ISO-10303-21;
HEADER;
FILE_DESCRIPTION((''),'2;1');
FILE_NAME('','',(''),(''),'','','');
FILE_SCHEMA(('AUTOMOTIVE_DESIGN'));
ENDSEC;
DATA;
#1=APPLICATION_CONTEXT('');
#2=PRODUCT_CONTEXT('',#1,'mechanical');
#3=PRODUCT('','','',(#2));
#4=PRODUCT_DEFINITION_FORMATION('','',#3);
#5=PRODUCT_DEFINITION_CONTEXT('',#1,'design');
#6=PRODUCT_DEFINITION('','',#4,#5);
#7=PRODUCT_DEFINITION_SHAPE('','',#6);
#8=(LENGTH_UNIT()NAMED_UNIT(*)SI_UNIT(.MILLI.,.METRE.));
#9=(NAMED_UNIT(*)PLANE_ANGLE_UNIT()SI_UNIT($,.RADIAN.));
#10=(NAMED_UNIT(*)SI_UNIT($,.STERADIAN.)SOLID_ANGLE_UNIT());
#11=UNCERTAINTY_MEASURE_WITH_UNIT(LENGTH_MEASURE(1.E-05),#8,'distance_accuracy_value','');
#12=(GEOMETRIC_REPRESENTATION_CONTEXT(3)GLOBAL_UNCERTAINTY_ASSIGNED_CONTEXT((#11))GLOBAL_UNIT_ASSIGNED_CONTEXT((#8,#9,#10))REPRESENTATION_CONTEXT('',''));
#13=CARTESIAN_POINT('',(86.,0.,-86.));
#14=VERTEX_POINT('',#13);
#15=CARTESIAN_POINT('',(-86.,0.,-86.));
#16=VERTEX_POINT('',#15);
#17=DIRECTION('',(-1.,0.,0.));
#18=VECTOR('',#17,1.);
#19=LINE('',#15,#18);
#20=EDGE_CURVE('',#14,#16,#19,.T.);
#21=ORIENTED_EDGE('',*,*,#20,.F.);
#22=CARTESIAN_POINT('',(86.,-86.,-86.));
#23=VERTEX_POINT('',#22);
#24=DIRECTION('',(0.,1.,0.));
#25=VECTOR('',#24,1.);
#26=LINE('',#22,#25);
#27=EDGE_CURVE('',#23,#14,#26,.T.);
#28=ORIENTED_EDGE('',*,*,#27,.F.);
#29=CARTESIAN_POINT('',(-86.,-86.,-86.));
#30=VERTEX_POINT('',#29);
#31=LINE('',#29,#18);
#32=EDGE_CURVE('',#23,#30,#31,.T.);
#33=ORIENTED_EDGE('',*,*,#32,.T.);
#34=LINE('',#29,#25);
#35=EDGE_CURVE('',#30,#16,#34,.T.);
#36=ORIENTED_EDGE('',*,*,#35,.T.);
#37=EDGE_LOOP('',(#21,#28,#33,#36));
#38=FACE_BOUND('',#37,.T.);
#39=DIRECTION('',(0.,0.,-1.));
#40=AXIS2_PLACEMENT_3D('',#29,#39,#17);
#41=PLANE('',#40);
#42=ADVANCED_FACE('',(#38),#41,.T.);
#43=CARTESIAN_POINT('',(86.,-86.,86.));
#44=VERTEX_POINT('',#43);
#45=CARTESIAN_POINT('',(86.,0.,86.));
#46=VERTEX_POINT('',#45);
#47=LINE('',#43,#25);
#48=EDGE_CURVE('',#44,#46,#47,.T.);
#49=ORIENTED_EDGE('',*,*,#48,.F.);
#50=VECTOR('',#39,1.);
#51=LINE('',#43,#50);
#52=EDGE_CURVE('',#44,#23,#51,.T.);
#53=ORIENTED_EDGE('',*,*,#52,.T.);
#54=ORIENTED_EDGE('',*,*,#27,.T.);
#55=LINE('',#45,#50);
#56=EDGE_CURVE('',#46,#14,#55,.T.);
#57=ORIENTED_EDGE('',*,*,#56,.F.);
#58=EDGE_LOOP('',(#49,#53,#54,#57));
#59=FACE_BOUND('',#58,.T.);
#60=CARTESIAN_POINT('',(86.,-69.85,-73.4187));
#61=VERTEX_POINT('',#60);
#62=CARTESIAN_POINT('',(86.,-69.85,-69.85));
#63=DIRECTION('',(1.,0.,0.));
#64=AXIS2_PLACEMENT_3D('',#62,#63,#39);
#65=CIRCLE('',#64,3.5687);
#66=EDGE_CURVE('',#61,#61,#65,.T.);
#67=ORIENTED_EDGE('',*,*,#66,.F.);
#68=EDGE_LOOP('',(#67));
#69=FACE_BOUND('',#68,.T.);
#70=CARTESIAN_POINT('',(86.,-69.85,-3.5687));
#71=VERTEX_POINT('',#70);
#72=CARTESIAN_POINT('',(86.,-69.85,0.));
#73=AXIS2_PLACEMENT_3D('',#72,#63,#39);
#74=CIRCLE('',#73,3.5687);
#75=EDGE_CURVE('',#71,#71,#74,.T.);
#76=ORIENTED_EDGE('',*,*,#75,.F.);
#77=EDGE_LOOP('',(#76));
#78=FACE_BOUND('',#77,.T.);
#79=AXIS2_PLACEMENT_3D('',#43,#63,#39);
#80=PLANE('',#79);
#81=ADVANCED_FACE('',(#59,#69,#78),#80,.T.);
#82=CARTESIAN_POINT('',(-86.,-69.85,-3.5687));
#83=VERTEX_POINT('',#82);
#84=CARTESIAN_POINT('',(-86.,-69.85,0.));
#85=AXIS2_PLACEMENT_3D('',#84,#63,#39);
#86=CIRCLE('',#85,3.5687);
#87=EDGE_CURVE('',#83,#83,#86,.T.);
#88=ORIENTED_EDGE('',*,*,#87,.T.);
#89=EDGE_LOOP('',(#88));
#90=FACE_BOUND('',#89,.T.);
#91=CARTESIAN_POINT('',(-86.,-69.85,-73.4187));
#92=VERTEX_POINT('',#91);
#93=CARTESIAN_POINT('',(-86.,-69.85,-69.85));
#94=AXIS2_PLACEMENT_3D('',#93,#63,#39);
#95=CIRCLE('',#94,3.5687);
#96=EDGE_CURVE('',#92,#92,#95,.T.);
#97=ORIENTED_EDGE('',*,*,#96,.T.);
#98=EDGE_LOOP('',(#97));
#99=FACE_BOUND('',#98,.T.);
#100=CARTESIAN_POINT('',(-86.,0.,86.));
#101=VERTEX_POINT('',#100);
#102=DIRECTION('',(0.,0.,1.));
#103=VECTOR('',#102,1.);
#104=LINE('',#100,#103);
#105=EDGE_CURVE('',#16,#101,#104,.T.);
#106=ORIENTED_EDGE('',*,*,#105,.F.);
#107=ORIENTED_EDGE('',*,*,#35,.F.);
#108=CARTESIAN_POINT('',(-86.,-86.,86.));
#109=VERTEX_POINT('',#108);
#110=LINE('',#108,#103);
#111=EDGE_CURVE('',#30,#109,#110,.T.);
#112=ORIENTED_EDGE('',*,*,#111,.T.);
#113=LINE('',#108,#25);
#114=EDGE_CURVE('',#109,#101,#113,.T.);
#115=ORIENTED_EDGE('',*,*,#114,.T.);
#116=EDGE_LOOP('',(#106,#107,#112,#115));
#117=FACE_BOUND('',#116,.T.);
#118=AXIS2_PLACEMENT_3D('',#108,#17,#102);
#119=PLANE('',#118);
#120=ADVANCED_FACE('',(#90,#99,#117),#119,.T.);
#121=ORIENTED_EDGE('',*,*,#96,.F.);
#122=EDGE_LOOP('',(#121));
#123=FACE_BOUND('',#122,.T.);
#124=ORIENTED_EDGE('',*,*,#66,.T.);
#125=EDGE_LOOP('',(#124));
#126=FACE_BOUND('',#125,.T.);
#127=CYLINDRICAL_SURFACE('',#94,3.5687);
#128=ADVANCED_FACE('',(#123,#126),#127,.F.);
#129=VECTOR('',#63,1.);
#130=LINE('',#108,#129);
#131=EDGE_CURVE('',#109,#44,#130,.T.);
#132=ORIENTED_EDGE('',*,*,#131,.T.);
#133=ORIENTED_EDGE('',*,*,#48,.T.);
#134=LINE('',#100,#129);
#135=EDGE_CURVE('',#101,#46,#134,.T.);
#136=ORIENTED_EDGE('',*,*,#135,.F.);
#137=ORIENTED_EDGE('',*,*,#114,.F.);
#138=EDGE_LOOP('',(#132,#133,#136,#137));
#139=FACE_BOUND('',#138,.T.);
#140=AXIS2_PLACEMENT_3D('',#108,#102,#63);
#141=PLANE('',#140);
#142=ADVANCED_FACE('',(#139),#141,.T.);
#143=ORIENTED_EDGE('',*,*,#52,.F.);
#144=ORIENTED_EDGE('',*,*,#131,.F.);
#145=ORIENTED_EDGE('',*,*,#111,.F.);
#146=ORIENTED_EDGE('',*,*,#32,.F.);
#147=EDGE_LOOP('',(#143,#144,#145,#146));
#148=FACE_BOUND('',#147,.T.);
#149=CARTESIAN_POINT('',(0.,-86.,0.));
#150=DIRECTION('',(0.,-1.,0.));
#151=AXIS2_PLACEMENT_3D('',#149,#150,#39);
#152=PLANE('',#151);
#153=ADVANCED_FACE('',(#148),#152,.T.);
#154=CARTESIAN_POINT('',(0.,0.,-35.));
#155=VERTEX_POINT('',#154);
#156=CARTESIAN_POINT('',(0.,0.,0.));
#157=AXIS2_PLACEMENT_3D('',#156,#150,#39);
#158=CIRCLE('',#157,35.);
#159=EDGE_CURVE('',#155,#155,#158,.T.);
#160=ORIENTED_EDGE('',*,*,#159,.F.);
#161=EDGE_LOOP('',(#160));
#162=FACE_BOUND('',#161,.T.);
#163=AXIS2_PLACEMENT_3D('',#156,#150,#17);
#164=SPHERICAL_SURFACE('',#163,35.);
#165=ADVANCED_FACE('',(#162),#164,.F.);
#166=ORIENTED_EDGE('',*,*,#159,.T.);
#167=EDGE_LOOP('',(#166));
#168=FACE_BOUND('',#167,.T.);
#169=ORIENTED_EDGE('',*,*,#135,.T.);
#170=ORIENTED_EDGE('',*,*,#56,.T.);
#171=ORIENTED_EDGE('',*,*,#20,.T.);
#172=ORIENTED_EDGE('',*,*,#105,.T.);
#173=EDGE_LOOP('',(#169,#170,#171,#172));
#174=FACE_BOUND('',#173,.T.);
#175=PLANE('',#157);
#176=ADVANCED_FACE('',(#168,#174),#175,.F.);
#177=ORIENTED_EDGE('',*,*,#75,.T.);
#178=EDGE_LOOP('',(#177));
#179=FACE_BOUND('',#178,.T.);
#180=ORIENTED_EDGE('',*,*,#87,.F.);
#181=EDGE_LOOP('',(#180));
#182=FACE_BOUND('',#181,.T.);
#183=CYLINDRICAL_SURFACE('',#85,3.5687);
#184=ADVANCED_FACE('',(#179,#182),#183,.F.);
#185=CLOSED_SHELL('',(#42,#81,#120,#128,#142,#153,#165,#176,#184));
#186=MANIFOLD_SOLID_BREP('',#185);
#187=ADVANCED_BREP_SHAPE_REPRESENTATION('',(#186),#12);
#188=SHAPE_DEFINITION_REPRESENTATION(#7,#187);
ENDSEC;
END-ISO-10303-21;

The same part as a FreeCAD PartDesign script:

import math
import FreeCAD as App
import Part
import Sketcher

V = App.Vector
Q = App.Units.Quantity

doc = App.newDocument("Part")
body = doc.addObject("PartDesign::Body", "Body")

# Sketch on XZ plane
sketch1 = body.newObject("Sketcher::SketchObject", "Sketch")
sketch1.AttachmentSupport = (doc.getObject("XZ_Plane"), [""])
sketch1.MapMode = "FlatFace"
sketch1.addGeometry(Part.LineSegment(V(-86, -86, 0), V(-86, 86, 0)), False)
sketch1.addGeometry(Part.LineSegment(V(-86, 86, 0), V(86, 86, 0)), False)
sketch1.addGeometry(Part.LineSegment(V(86, 86, 0), V(86, -86, 0)), False)
sketch1.addGeometry(Part.LineSegment(V(86, -86, 0), V(-86, -86, 0)), False)
sketch1.addConstraint(Sketcher.Constraint("Coincident", 0, 2, 1, 1))
sketch1.addConstraint(Sketcher.Constraint("Coincident", 1, 2, 2, 1))
sketch1.addConstraint(Sketcher.Constraint("Coincident", 2, 2, 3, 1))
sketch1.addConstraint(Sketcher.Constraint("Coincident", 3, 2, 0, 1))
sketch1.addConstraint(Sketcher.Constraint("Vertical", 0))
sketch1.addConstraint(Sketcher.Constraint("Horizontal", 1))
sketch1.addConstraint(Sketcher.Constraint("Vertical", 2))
sketch1.addConstraint(Sketcher.Constraint("Horizontal", 3))
sketch1.addConstraint(Sketcher.Constraint("Symmetric", 0, 2, 2, 2, -1, 1))
sketch1.addConstraint(Sketcher.Constraint("Equal", 3, 0))
sketch1.addConstraint(Sketcher.Constraint("DistanceX", 1, 1, 1, 2, Q("172 mm")))
pad1 = body.newObject("PartDesign::Pad", "Pad")
pad1.Profile = sketch1
pad1.Length = 86

# Sketch on XY plane
sketch2 = body.newObject("Sketcher::SketchObject", "Sketch001")
sketch2.AttachmentSupport = (doc.getObject("XY_Plane"), [""])
sketch2.MapMode = "FlatFace"
sketch2.addGeometry(Part.LineSegment(V(0, 0, 0), V(0, -35, 0)), False)
sketch2.addGeometry(Part.ArcOfCircle(Part.Circle(V(0, 0, 0), V(0, 0, 1), 35), math.radians(-90), math.radians(0)), False)
sketch2.addGeometry(Part.LineSegment(V(35, 0, 0), V(0, 0, 0)), False)
sketch2.addConstraint(Sketcher.Constraint("Coincident", 0, 2, 1, 1))
sketch2.addConstraint(Sketcher.Constraint("Coincident", 1, 2, 2, 1))
sketch2.addConstraint(Sketcher.Constraint("Coincident", 2, 2, 0, 1))
sketch2.addConstraint(Sketcher.Constraint("Vertical", 0))
sketch2.addConstraint(Sketcher.Constraint("Horizontal", 2))
sketch2.addConstraint(Sketcher.Constraint("Coincident", 1, 3, -1, 1))
sketch2.addConstraint(Sketcher.Constraint("Coincident", 2, 2, -1, 1))
sketch2.addConstraint(Sketcher.Constraint("Radius", 1, Q("35 mm")))
groove = body.newObject("PartDesign::Groove", "Groove")
groove.Profile = sketch2
groove.ReferenceAxis = (sketch2, ["V_Axis"])
groove.Angle = 360

# Sketch on YZ plane
sketch3 = body.newObject("Sketcher::SketchObject", "Sketch002")
sketch3.AttachmentSupport = (doc.getObject("YZ_Plane"), [""])
sketch3.MapMode = "FlatFace"
sketch3.addGeometry(Part.Circle(V(-69.85, 0, 0), V(0, 0, 1), 3.5687), False)
sketch3.addGeometry(Part.Circle(V(-69.85, -69.85, 0), V(0, 0, 1), 3.5687), False)
sketch3.addConstraint(Sketcher.Constraint("Equal", 0, 1))
sketch3.addConstraint(Sketcher.Constraint("PointOnObject", 0, 3, -1))
sketch3.addConstraint(Sketcher.Constraint("Vertical", 0, 3, 1, 3))
sketch3.addConstraint(Sketcher.Constraint("Diameter", 0, Q("7.1374 mm")))
sketch3.addConstraint(Sketcher.Constraint("DistanceX", 0, 3, -1, 1, Q("69.85 mm")))
sketch3.addConstraint(Sketcher.Constraint("DistanceY", 1, 3, -1, 1, Q("69.85 mm")))
pocket1 = body.newObject("PartDesign::Pocket", "Pocket")
pocket1.Profile = sketch3
pocket1.Type = "ThroughAll"
pocket1.Midplane = True

doc.recompute()
